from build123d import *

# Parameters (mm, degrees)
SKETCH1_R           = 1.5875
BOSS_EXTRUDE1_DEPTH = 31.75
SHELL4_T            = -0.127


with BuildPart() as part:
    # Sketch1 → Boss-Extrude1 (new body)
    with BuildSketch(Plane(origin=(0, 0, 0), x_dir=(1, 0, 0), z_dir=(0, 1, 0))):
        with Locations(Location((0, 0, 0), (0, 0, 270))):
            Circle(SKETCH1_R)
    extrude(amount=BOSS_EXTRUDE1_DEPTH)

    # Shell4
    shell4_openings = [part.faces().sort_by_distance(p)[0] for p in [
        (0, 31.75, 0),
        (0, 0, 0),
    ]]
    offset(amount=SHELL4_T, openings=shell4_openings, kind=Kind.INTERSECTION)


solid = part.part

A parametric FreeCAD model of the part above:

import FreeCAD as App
import Part
import Sketcher

V = App.Vector
Q = App.Units.Quantity


def faces_at(feature, points):
    """Names of the faces that lie closest to the given points."""
    faces = feature.Shape.Faces
    near = lambda p: min(range(len(faces)), key=lambda i: faces[i].distToShape(Part.Vertex(*p))[0])
    return sorted({f"Face{near(p) + 1}" for p in points})

doc = App.newDocument("Part")
body = doc.addObject("PartDesign::Body", "Body")

sketch1 = body.newObject("Sketcher::SketchObject", "Sketch")
sketch1.AttachmentSupport = (doc.getObject("XZ_Plane"), [""])
sketch1.MapMode = "FlatFace"
sketch1.addGeometry(Part.Circle(V(0, 0, 0), V(0, 0, 1), 1.6), False)
sketch1.addConstraint([
    Sketcher.Constraint("Coincident", 0, 3, -1, 1),
    Sketcher.Constraint("Diameter", 0, Q("0.125 in")),
])
pad1 = body.newObject("PartDesign::Pad", "Pad")
pad1.Profile = sketch1
pad1.Length = Q("1.25 in")
pad1.Reversed = True
doc.recompute()

thickness = body.newObject("PartDesign::Thickness", "Thickness")
thickness.Base = (pad1, faces_at(pad1, [(0, 31.75, 0), (0, 0, 0)]))
thickness.Value = Q("0.005 in")
thickness.Reversed = True
thickness.Join = "Intersection"

doc.recompute()
